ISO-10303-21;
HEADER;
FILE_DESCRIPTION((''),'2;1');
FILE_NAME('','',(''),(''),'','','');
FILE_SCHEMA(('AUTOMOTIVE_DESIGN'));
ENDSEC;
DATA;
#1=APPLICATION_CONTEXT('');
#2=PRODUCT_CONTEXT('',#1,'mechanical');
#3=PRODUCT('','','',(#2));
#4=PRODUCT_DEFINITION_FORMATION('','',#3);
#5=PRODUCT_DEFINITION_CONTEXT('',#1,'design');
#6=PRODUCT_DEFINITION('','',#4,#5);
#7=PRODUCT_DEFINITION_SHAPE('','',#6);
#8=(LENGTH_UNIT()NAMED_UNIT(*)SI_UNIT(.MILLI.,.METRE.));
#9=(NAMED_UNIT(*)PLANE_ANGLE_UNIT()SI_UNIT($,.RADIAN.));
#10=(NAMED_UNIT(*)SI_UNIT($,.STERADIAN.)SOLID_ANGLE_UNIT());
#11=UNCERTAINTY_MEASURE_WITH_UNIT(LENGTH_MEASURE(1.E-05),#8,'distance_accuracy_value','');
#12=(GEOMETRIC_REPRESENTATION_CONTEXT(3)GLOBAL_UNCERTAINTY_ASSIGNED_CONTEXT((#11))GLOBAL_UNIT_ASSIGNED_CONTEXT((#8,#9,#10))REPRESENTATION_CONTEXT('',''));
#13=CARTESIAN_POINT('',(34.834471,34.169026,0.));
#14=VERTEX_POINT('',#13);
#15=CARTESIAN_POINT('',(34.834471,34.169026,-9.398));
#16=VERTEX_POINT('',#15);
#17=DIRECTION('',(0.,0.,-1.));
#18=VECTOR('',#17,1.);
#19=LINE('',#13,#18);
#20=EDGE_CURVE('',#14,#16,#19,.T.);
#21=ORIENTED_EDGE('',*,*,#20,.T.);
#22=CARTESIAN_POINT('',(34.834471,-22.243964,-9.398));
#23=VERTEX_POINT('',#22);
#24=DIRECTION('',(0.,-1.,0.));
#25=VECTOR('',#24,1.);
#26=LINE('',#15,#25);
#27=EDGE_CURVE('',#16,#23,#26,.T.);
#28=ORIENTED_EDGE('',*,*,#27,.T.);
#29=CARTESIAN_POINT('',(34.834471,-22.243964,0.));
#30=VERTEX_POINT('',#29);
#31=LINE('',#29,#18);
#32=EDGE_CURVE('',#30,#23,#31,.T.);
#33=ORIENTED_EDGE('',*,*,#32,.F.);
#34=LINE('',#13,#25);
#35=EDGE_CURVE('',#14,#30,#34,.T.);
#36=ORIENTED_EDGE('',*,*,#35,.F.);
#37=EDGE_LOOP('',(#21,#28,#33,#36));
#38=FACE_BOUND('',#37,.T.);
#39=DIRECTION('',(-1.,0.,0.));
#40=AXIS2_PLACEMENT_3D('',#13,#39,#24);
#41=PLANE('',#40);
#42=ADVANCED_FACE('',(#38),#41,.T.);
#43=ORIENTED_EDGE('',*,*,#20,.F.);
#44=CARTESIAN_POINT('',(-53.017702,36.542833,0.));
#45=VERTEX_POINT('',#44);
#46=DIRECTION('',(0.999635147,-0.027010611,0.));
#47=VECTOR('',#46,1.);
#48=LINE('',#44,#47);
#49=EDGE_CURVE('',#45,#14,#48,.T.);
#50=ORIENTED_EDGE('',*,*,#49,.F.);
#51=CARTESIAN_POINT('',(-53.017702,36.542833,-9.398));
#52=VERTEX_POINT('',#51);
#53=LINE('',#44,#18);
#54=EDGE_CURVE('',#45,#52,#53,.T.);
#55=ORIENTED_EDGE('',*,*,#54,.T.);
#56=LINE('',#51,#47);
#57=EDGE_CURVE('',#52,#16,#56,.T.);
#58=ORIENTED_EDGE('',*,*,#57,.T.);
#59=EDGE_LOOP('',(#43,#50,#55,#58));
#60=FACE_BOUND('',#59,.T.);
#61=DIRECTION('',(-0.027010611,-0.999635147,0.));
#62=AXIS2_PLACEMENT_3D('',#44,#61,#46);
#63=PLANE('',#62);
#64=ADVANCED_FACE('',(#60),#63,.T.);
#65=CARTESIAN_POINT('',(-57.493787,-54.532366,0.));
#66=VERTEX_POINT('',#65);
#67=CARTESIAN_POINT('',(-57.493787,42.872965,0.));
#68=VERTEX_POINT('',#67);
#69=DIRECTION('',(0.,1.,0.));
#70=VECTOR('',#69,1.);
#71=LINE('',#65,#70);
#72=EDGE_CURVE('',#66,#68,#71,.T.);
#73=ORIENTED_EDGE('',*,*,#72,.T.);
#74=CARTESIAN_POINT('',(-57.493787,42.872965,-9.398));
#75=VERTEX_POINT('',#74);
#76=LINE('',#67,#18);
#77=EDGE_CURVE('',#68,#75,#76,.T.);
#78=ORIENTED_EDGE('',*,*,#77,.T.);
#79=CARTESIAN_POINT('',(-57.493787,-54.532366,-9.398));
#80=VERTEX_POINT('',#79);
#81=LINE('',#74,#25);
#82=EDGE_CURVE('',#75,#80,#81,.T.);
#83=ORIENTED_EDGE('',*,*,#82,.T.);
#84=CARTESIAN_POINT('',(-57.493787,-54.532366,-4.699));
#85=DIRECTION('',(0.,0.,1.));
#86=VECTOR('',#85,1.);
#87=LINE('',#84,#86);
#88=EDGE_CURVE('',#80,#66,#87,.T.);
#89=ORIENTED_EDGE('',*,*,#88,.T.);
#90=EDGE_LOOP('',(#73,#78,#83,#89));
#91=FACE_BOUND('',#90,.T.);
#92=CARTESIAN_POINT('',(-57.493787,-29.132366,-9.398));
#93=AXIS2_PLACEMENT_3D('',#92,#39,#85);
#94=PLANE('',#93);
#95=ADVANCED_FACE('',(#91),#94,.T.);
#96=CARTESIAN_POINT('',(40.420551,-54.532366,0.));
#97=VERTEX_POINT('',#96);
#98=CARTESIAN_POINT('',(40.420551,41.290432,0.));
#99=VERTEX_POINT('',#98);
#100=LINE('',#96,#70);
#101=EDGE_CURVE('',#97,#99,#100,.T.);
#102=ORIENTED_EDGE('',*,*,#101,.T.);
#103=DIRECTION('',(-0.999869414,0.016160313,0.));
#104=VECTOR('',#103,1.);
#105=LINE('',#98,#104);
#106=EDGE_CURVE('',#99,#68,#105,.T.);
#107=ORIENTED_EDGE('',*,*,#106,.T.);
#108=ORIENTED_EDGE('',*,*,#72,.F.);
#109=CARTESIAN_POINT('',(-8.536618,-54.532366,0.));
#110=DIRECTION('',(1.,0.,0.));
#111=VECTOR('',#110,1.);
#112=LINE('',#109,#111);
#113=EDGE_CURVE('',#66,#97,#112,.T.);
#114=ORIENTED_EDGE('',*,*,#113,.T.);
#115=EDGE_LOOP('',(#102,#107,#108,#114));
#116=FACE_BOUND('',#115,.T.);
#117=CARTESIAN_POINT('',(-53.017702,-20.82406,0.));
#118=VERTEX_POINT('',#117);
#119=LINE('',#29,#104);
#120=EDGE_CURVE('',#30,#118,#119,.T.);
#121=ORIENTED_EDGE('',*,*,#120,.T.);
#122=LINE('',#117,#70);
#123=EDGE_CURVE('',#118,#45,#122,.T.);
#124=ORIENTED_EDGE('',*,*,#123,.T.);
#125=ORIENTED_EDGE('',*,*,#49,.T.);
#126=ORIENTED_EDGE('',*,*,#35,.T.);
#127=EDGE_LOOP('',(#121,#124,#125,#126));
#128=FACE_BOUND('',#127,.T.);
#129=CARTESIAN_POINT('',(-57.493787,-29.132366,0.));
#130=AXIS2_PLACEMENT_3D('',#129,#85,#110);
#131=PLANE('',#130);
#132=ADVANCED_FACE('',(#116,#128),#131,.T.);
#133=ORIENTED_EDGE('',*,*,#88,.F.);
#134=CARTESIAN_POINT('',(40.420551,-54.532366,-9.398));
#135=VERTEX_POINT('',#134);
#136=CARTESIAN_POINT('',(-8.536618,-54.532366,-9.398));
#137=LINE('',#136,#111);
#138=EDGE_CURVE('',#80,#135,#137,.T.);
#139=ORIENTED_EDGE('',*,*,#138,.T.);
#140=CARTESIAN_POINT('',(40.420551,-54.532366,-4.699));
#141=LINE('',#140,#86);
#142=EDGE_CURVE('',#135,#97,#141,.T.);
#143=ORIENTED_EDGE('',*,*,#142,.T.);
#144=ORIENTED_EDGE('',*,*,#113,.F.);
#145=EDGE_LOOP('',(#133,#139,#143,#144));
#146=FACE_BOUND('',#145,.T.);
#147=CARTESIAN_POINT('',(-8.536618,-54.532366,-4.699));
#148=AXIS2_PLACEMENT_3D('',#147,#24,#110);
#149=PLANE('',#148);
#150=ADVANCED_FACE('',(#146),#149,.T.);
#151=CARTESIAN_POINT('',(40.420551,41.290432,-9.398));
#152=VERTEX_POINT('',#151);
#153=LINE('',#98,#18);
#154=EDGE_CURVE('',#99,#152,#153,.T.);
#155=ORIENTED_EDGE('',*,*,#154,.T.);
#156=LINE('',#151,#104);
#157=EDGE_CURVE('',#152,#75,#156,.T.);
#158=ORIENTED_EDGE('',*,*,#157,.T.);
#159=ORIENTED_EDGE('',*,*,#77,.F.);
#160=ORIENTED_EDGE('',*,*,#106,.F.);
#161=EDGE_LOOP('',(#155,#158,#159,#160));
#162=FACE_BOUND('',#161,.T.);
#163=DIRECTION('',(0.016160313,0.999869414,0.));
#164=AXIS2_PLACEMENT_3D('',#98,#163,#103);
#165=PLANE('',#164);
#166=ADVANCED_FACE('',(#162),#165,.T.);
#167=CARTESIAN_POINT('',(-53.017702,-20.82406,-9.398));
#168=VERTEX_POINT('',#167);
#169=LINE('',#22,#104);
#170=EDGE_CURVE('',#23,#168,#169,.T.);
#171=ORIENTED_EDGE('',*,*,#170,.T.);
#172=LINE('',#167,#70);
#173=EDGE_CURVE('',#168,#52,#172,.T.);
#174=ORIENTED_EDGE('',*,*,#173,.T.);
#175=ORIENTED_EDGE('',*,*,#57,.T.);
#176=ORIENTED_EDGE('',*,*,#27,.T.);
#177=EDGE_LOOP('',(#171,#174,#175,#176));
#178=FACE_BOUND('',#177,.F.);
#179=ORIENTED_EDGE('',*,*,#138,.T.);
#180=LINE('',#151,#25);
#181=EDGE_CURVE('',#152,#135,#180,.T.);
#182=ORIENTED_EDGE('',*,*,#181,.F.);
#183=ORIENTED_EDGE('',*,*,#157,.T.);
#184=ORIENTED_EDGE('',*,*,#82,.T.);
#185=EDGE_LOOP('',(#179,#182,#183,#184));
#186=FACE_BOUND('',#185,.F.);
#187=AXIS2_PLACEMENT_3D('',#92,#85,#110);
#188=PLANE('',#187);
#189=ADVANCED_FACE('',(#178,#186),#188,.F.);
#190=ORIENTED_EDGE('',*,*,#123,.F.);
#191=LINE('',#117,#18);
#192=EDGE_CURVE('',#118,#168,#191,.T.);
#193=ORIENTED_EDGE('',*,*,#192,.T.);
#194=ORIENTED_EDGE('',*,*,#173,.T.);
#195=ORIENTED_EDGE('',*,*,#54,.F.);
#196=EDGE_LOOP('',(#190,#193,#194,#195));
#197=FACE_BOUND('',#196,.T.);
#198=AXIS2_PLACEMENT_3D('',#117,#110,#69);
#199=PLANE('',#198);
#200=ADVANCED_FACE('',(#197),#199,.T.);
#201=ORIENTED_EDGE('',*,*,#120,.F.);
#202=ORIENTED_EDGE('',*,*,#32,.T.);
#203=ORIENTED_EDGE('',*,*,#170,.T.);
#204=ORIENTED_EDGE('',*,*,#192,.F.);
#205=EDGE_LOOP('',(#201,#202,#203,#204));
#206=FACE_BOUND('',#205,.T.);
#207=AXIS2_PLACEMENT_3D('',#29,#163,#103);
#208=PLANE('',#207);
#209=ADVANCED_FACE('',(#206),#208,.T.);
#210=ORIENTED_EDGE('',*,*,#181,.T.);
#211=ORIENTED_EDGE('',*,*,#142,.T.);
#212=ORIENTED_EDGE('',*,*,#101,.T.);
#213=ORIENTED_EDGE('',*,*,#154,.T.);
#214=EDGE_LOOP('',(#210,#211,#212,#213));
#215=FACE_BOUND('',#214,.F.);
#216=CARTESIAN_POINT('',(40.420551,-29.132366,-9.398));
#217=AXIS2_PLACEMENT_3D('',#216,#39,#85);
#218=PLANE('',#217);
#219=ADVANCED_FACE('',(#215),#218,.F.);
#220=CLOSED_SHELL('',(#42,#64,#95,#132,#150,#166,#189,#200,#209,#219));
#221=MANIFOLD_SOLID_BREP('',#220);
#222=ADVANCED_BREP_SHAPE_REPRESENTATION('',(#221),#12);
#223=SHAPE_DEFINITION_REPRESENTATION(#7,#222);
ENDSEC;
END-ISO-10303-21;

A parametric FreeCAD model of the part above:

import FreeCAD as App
import Part
import Sketcher

V = App.Vector
Q = App.Units.Quantity


def add_polygon(sketch, points):
    """Adds a closed chain of lines whose ends are joined by coincident constraints."""
    first, n = sketch.GeometryCount, len(points)
    for a, b in zip(points, points[1:] + points[:1]):
        sketch.addGeometry(Part.LineSegment(App.Vector(*a, 0), App.Vector(*b, 0)), False)
    for i in range(n):
        sketch.addConstraint(Sketcher.Constraint("Coincident", first + i, 2, first + (i + 1) % n, 1))

doc = App.newDocument("Part")
body = doc.addObject("PartDesign::Body", "Body")

# Sketch on XY plane
sketch1 = body.newObject("Sketcher::SketchObject", "Sketch")
sketch1.AttachmentSupport = (doc.getObject("XY_Plane"), [""])
sketch1.MapMode = "FlatFace"
add_polygon(sketch1, [(40.420551, 41.290432), (-57.493787, 42.872965), (-57.493787, -29.132366), (40.420551, -29.132366)])  # lines 0-3
add_polygon(sketch1, [(34.834471, -22.243964), (-53.017702, -20.82406), (-53.017702, 36.542833), (34.834471, 34.169026)])  # lines 4-7
sketch1.addConstraint(Sketcher.Constraint("Vertical", 1))
sketch1.addConstraint(Sketcher.Constraint("Horizontal", 2))
sketch1.addConstraint(Sketcher.Constraint("Vertical", 3))
sketch1.addConstraint(Sketcher.Constraint("Vertical", 5))
sketch1.addConstraint(Sketcher.Constraint("Vertical", 7))
sketch1.addConstraint(Sketcher.Constraint("Parallel", 0, 4))
sketch1.addConstraint(Sketcher.Constraint("DistanceY", 3, 1, 3, 2, Q("70.422798 mm")))
sketch1.addConstraint(Sketcher.Constraint("DistanceX", 2, 1, 2, 2, Q("97.914338 mm")))
sketch1.addConstraint(Sketcher.Constraint("DistanceY", 1, 2, 1, 1, Q("72.005331 mm")))
sketch1.addConstraint(Sketcher.Constraint("DistanceY", 7, 2, 7, 1, Q("56.41299 mm")))
sketch1.addConstraint(Sketcher.Constraint("DistanceY", 1, 2, 5, 2, Q("65.675199 mm")))
sketch1.addConstraint(Sketcher.Constraint("DistanceY", 5, 1, 5, 2, Q("57.366893 mm")))
sketch1.addConstraint(Sketcher.Constraint("DistanceX", -1, 1, 2, 2, Q("40.420551 mm")))
sketch1.addConstraint(Sketcher.Constraint("DistanceY", 4, 2, -1, 1, Q("20.82406 mm")))
sketch1.addConstraint(Sketcher.Constraint("DistanceX", -1, 1, 6, 2, Q("34.834471 mm")))
sketch1.addConstraint(Sketcher.Constraint("DistanceY", 6, 2, 0, 2, Q("8.703939 mm")))
pad1 = body.newObject("PartDesign::Pad", "Pad")
pad1.Profile = sketch1
pad1.Length = Q("0.37 in")
pad1.Reversed = True

# Sketch on XZ plane
sketch2 = body.newObject("Sketcher::SketchObject", "Sketch001")
sketch2.AttachmentSupport = (doc.getObject("XZ_Plane"), [""])
sketch2.MapMode = "FlatFace"
sketch2.AttachmentOffset = App.Placement(V(0, 0, 29.132366), App.Rotation())
add_polygon(sketch2, [(-57.493787, 0), (-57.493787, -9.398), (40.420551, -9.398), (40.420551, 0)])  # lines 0-3
sketch2.addConstraint(Sketcher.Constraint("Vertical", 0))
sketch2.addConstraint(Sketcher.Constraint("Horizontal", 1))
sketch2.addConstraint(Sketcher.Constraint("Vertical", 2))
sketch2.addConstraint(Sketcher.Constraint("Horizontal", 3))
sketch2.addConstraint(Sketcher.Constraint("PointOnObject", 2, 2, -1))
sketch2.addConstraint(Sketcher.Constraint("DistanceY", 0, 2, 0, 1, Q("0.37 in")))
sketch2.addConstraint(Sketcher.Constraint("DistanceX", 1, 1, 1, 2, Q("97.914338 mm")))
sketch2.addConstraint(Sketcher.Constraint("DistanceX", -1, 1, 1, 2, Q("40.420551 mm")))
pad2 = body.newObject("PartDesign::Pad", "Pad001")
pad2.Profile = sketch2
pad2.Length = Q("1 in")

doc.recompute()
